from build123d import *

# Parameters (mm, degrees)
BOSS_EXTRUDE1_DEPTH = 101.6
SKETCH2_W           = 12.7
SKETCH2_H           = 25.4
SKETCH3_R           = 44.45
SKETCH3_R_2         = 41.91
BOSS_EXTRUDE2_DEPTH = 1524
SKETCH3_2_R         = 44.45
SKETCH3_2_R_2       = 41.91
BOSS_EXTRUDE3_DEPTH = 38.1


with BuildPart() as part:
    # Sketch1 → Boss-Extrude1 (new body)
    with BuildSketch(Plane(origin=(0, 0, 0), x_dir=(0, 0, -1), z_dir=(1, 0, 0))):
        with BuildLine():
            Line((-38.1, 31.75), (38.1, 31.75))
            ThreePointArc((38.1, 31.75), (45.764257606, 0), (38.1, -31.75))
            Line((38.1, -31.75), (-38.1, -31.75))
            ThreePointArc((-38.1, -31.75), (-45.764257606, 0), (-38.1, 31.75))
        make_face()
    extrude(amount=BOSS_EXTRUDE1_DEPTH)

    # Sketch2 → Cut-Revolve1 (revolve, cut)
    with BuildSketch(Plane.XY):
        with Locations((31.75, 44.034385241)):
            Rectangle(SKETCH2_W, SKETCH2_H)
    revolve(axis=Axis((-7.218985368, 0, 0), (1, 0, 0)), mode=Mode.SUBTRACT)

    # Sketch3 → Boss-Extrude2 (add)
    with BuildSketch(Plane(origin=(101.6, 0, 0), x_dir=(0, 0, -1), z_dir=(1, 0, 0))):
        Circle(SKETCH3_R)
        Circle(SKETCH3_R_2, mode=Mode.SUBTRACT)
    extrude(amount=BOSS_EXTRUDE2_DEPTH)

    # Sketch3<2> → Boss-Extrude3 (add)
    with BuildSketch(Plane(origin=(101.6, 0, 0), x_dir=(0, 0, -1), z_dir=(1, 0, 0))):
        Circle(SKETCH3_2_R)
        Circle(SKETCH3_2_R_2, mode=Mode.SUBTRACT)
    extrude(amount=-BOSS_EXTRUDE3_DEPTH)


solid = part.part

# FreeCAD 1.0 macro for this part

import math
import FreeCAD as App
import Part
import Sketcher
from FreeCAD import Vector
Q = App.Units.Quantity

doc = App.newDocument("Part")
params = doc.addObject("Spreadsheet::Sheet", "Params")
for row, (alias, value) in enumerate([
    ("sketch1_height", "3 in"),
    ("sketch1_radius", "2.74 in"),
    ("pad1_length", "4 in"),
    ("sketch2_height", "1 in"),
    ("sketch2_width", "0.5 in"),
    ("groove_angle", "360 deg"),
    ("sketch3_diameter", "3.5 in"),
    ("sketch3_diameter2", "3.3 in"),
    ("pad2_length", "60 in"),
    ("sketch4_diameter", "3.5 in"),
    ("sketch4_diameter2", "3.3 in"),
    ("pad3_length", "1.5 in"),
], start=1):
    params.set(f"A{row}", alias)
    params.set(f"B{row}", "=" + value)
    params.setAlias(f"B{row}", alias)

body = doc.addObject("PartDesign::Body", "Body")

sketch1 = body.newObject("Sketcher::SketchObject", "Sketch")
sketch1.AttachmentSupport = (doc.getObject("YZ_Plane"), [""])
sketch1.MapMode = "FlatFace"
sketch1.addGeometry([
    Part.LineSegment(Vector(31.75, -38.1, 0), Vector(31.75, 38.1, 0)),
    Part.ArcOfCircle(Part.Circle(Vector(0, -23.831742, 0), Vector(0, 0, 1), 69.596), math.radians(62.857547), math.radians(117.142453)),
    Part.LineSegment(Vector(-31.75, 38.1, 0), Vector(-31.75, -38.1, 0)),
    Part.ArcOfCircle(Part.Circle(Vector(0, 23.831742, 0), Vector(0, 0, 1), 69.596), math.radians(-117.142453), math.radians(-62.857547)),
], False)
sketch1.addConstraint([
    Sketcher.Constraint("Coincident", 0, 2, 1, 1),
    Sketcher.Constraint("Coincident", 1, 2, 2, 1),
    Sketcher.Constraint("Coincident", 2, 2, 3, 1),
    Sketcher.Constraint("Coincident", 3, 2, 0, 1),
    Sketcher.Constraint("Vertical", 0),
    Sketcher.Constraint("Vertical", 2),
    Sketcher.Constraint("Equal", 1, 3),
    Sketcher.Constraint("Symmetric", 1, 3, 3, 3, -1, 1),
    Sketcher.Constraint("Symmetric", 0, 2, 1, 2, -2),
    Sketcher.Constraint("DistanceY", 0, 1, 0, 2, Q("3 in")),
    Sketcher.Constraint("Radius", 1, Q("2.74 in")),
    Sketcher.Constraint("DistanceX", 1, 2, 0, 2, Q("2.5 in")),
])
sketch1.setExpression("Constraints[9]", "Params.sketch1_height")
sketch1.setExpression("Constraints[10]", "Params.sketch1_radius")
pad1 = body.newObject("PartDesign::Pad", "Pad")
pad1.Profile = sketch1
pad1.setExpression("Length", "Params.pad1_length")

sketch2 = body.newObject("Sketcher::SketchObject", "Sketch001")
sketch2.AttachmentSupport = (doc.getObject("XY_Plane"), [""])
sketch2.MapMode = "FlatFace"
sketch2.addGeometry([
    Part.LineSegment(Vector(25.4, 56.734385, 0), Vector(25.4, 31.334385, 0)),
    Part.LineSegment(Vector(25.4, 31.334385, 0), Vector(38.1, 31.334385, 0)),
    Part.LineSegment(Vector(38.1, 31.334385, 0), Vector(38.1, 56.734385, 0)),
    Part.LineSegment(Vector(38.1, 56.734385, 0), Vector(25.4, 56.734385, 0)),
], False)
sketch2.addConstraint([
    Sketcher.Constraint("Coincident", 0, 2, 1, 1),
    Sketcher.Constraint("Coincident", 1, 2, 2, 1),
    Sketcher.Constraint("Coincident", 2, 2, 3, 1),
    Sketcher.Constraint("Coincident", 3, 2, 0, 1),
    Sketcher.Constraint("Vertical", 0),
    Sketcher.Constraint("Horizontal", 1),
    Sketcher.Constraint("Vertical", 2),
    Sketcher.Constraint("Horizontal", 3),
    Sketcher.Constraint("DistanceY", 0, 2, 0, 1, Q("1 in")),
    Sketcher.Constraint("DistanceX", 1, 1, 1, 2, Q("0.5 in")),
    Sketcher.Constraint("DistanceX", -1, 1, 0, 2, Q("1 in")),
    Sketcher.Constraint("DistanceY", -1, 1, 0, 2, Q("31.334385 mm")),
])
sketch2.setExpression("Constraints[8]", "Params.sketch2_height")
sketch2.setExpression("Constraints[9]", "Params.sketch2_width")
groove = body.newObject("PartDesign::Groove", "Groove")
groove.Profile = sketch2
groove.ReferenceAxis = (sketch2, ["H_Axis"])
groove.setExpression("Angle", "Params.groove_angle")

sketch3 = body.newObject("Sketcher::SketchObject", "Sketch002")
sketch3.AttachmentSupport = (doc.getObject("YZ_Plane"), [""])
sketch3.MapMode = "FlatFace"
sketch3.AttachmentOffset = App.Placement(Vector(0, 0, 4 * 25.4), App.Rotation())
sketch3.addGeometry([
    Part.Circle(Vector(0, 0, 0), Vector(0, 0, 1), 44.45),
    Part.Circle(Vector(0, 0, 0), Vector(0, 0, 1), 41.91),
], False)
sketch3.addConstraint([
    Sketcher.Constraint("Coincident", 0, 3, -1, 1),
    Sketcher.Constraint("Coincident", 1, 3, -1, 1),
    Sketcher.Constraint("Diameter", 0, Q("3.5 in")),
    Sketcher.Constraint("Diameter", 1, Q("3.3 in")),
])
sketch3.setExpression("Constraints[2]", "Params.sketch3_diameter")
sketch3.setExpression("Constraints[3]", "Params.sketch3_diameter2")
pad2 = body.newObject("PartDesign::Pad", "Pad001")
pad2.Profile = sketch3
pad2.setExpression("Length", "Params.pad2_length")

sketch4 = body.newObject("Sketcher::SketchObject", "Sketch003")
sketch4.AttachmentSupport = (doc.getObject("YZ_Plane"), [""])
sketch4.MapMode = "FlatFace"
sketch4.AttachmentOffset = App.Placement(Vector(0, 0, 4 * 25.4), App.Rotation())
sketch4.addGeometry([
    Part.Circle(Vector(0, 0, 0), Vector(0, 0, 1), 44.45),
    Part.Circle(Vector(0, 0, 0), Vector(0, 0, 1), 41.91),
], False)
sketch4.addConstraint([
    Sketcher.Constraint("Coincident", 0, 3, -1, 1),
    Sketcher.Constraint("Coincident", 1, 3, -1, 1),
    Sketcher.Constraint("Diameter", 0, Q("3.5 in")),
    Sketcher.Constraint("Diameter", 1, Q("3.3 in")),
])
sketch4.setExpression("Constraints[2]", "Params.sketch4_diameter")
sketch4.setExpression("Constraints[3]", "Params.sketch4_diameter2")
pad3 = body.newObject("PartDesign::Pad", "Pad002")
pad3.Profile = sketch4
pad3.setExpression("Length", "Params.pad3_length")
pad3.Reversed = True

doc.recompute()
